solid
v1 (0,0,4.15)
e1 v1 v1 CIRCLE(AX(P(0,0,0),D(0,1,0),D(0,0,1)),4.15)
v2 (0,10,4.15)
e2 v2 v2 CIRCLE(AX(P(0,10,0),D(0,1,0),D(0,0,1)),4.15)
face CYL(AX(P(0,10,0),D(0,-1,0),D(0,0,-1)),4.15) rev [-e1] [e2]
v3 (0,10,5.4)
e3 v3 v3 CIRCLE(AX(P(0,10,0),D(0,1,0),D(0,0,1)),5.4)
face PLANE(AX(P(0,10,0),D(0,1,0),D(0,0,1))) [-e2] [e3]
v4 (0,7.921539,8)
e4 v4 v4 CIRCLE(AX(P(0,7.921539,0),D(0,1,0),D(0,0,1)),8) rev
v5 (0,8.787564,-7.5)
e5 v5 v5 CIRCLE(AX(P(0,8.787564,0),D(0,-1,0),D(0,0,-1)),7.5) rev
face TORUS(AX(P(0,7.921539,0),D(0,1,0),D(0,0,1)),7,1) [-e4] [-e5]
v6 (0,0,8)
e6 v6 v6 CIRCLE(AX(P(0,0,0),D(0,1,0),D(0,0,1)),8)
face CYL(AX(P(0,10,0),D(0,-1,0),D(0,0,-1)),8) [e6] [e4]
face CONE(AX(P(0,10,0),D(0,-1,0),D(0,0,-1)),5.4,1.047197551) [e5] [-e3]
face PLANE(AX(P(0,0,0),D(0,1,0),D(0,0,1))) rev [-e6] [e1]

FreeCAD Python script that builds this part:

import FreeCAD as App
import Part
import Sketcher
from FreeCAD import Vector


def edges_at(feature, points):
    """Names of the edges that pass closest to the given points."""
    edges = feature.Shape.Edges
    near = lambda p: min(range(len(edges)), key=lambda i: edges[i].distToShape(Part.Vertex(*p))[0])
    return sorted({f"Edge{near(p) + 1}" for p in points})

doc = App.newDocument("Part")
body = doc.addObject("PartDesign::Body", "Body")

# Sketch on XZ plane
sketch1 = body.newObject("Sketcher::SketchObject", "Sketch")
sketch1.AttachmentSupport = (doc.getObject("XZ_Plane"), [""])
sketch1.MapMode = "FlatFace"
sketch1.addGeometry([
    Part.Circle(Vector(0, 0, 0), Vector(0, 0, 1), 8),
    Part.Circle(Vector(0, 0, 0), Vector(0, 0, 1), 4.15),
], False)
sketch1.addConstraint([
    Sketcher.Constraint("Coincident", 0, 3, -1, 1),
    Sketcher.Constraint("Coincident", 1, 3, -1, 1),
    Sketcher.Constraint("Diameter", 0, 16.0),
    Sketcher.Constraint("Diameter", 1, 8.3),
])
pad1 = body.newObject("PartDesign::Pad", "Pad")
pad1.Profile = sketch1
pad1.Length = 10
pad1.Reversed = True
doc.recompute()

chamfer = body.newObject("PartDesign::Chamfer", "Chamfer")
chamfer.Base = (pad1, edges_at(pad1, [(-8, 10, 0)]))
chamfer.ChamferType = "Two distances"
chamfer.Size = 2.6
chamfer.Size2 = 1.501111
chamfer.FlipDirection = True
doc.recompute()

fillet = body.newObject("PartDesign::Fillet", "Fillet")
fillet.Base = (chamfer, edges_at(chamfer, [(-8, 8.499, 0)]))
fillet.Radius = 1

doc.recompute()
